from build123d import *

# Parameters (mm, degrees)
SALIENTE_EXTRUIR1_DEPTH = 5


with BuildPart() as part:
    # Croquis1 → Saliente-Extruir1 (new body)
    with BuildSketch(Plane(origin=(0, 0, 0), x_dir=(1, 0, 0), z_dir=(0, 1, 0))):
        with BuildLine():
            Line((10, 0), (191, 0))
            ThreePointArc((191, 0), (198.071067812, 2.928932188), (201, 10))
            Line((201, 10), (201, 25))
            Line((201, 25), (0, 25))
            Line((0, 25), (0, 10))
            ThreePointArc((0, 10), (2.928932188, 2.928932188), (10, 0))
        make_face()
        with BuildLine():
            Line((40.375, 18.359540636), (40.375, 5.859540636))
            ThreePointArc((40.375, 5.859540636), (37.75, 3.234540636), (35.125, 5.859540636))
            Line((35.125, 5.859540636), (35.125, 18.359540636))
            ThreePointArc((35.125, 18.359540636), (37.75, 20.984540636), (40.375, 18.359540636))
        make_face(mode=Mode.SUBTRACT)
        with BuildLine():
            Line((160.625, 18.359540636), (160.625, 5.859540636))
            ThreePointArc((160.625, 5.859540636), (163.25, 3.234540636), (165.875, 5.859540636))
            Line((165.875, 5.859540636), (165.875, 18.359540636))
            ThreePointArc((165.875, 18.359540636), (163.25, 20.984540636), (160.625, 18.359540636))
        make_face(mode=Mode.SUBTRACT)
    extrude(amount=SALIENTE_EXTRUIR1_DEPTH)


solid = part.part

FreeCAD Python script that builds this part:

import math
import FreeCAD as App
import Part
import Sketcher
from FreeCAD import Vector

doc = App.newDocument("Part")
body = doc.addObject("PartDesign::Body", "Body")

sketch1 = doc.addObject("Sketcher::SketchObject", "Sketch")
body.addObject(sketch1)
sketch1.AttachmentSupport = (doc.XZ_Plane, [""])
sketch1.MapMode = "FlatFace"
sketch1.addGeometry([
    Part.LineSegment(Vector(10, 0, 0), Vector(191, 0, 0)),
    Part.ArcOfCircle(Part.Circle(Vector(191, -10, 0), Vector(0, 0, 1), 10), math.radians(0), math.radians(90)),
    Part.LineSegment(Vector(201, -10, 0), Vector(201, -25, 0)),
    Part.LineSegment(Vector(201, -25, 0), Vector(0, -25, 0)),
    Part.LineSegment(Vector(0, -25, 0), Vector(0, -10, 0)),
    Part.ArcOfCircle(Part.Circle(Vector(10, -10, 0), Vector(0, 0, 1), 10), math.radians(90), math.radians(180)),
    Part.ArcOfCircle(Part.Circle(Vector(37.75, -18.359541, 0), Vector(0, 0, 1), 2.625), math.radians(180), math.radians(360)),
    Part.LineSegment(Vector(40.375, -18.359541, 0), Vector(40.375, -5.859541, 0)),
    Part.ArcOfCircle(Part.Circle(Vector(37.75, -5.859541, 0), Vector(0, 0, 1), 2.625), math.radians(0), math.radians(180)),
    Part.LineSegment(Vector(35.125, -5.859541, 0), Vector(35.125, -18.359541, 0)),
    Part.LineSegment(Vector(160.625, -5.859541, 0), Vector(160.625, -18.359541, 0)),
    Part.ArcOfCircle(Part.Circle(Vector(163.25, -18.359541, 0), Vector(0, 0, 1), 2.625), math.radians(180), math.radians(360)),
    Part.LineSegment(Vector(165.875, -18.359541, 0), Vector(165.875, -5.859541, 0)),
    Part.ArcOfCircle(Part.Circle(Vector(163.25, -5.859541, 0), Vector(0, 0, 1), 2.625), math.radians(0), math.radians(180)),
], False)
sketch1.addConstraint([
    Sketcher.Constraint("Tangent", 0, 2, 1, 2),
    Sketcher.Constraint("Tangent", 1, 1, 2, 1),
    Sketcher.Constraint("Coincident", 2, 2, 3, 1),
    Sketcher.Constraint("Coincident", 3, 2, 4, 1),
    Sketcher.Constraint("Tangent", 4, 2, 5, 2),
    Sketcher.Constraint("Tangent", 5, 1, 0, 1),
    Sketcher.Constraint("Tangent", 6, 2, 7, 1),
    Sketcher.Constraint("Tangent", 7, 2, 8, 1),
    Sketcher.Constraint("Tangent", 8, 2, 9, 1),
    Sketcher.Constraint("Tangent", 9, 2, 6, 1),
    Sketcher.Constraint("Tangent", 10, 2, 11, 1),
    Sketcher.Constraint("Tangent", 11, 2, 12, 1),
    Sketcher.Constraint("Tangent", 12, 2, 13, 1),
    Sketcher.Constraint("Tangent", 13, 2, 10, 1),
    Sketcher.Constraint("Horizontal", 0),
    Sketcher.Constraint("Vertical", 2),
    Sketcher.Constraint("Horizontal", 3),
    Sketcher.Constraint("Vertical", 4),
    Sketcher.Constraint("Vertical", 7),
    Sketcher.Constraint("Vertical", 9),
    Sketcher.Constraint("Vertical", 10),
    Sketcher.Constraint("Vertical", 12),
    Sketcher.Constraint("Equal", 1, 5),
    Sketcher.Constraint("Equal", 8, 11),
    Sketcher.Constraint("PointOnObject", 0, 2, -1),
    Sketcher.Constraint("PointOnObject", 3, 2, -2),
    Sketcher.Constraint("Horizontal", 6, 3, 11, 3),
    Sketcher.Constraint("Horizontal", 8, 3, 13, 3),
    Sketcher.Constraint("Radius", 1, 10.0),
    Sketcher.Constraint("DistanceX", 0, 1, 0, 2, 181.0),
    Sketcher.Constraint("DistanceY", 2, 2, 2, 1, 15.0),
    Sketcher.Constraint("DistanceY", 7, 1, 7, 2, 12.5),
    Sketcher.Constraint("Radius", 6, 2.625),
    Sketcher.Constraint("DistanceX", 6, 3, 11, 3, 125.5),
    Sketcher.Constraint("DistanceX", -1, 1, 6, 3, 37.75),
    Sketcher.Constraint("DistanceY", 6, 3, -1, 1, 18.359541),
])
pad1 = doc.addObject("PartDesign::Pad", "Pad")
body.addObject(pad1)
pad1.Profile = sketch1
pad1.Length = 5
pad1.Reversed = True

doc.recompute()
